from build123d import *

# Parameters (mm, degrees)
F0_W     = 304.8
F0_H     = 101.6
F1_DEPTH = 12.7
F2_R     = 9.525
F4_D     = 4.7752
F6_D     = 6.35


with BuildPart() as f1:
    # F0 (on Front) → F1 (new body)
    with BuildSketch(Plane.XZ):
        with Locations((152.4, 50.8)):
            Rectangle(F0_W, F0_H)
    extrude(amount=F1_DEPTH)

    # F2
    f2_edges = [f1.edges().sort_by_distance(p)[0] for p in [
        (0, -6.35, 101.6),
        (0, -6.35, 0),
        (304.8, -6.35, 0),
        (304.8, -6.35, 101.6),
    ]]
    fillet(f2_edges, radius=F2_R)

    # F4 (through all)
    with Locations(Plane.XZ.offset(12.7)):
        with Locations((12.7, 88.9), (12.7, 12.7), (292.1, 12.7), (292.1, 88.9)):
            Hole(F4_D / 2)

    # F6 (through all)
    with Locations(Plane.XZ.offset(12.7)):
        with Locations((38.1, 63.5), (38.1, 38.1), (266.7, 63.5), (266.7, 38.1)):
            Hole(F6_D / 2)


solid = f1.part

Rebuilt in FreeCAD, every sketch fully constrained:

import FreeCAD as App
import Part
import Sketcher

V = App.Vector
Q = App.Units.Quantity


def edges_at(feature, points):
    """Names of the edges that pass closest to the given points."""
    edges = feature.Shape.Edges
    near = lambda p: min(range(len(edges)), key=lambda i: edges[i].distToShape(Part.Vertex(*p))[0])
    return sorted({f"Edge{near(p) + 1}" for p in points})

doc = App.newDocument("Part")
body = doc.addObject("PartDesign::Body", "Body")

# Sketch on XZ plane
sketch1 = body.newObject("Sketcher::SketchObject", "Sketch")
sketch1.AttachmentSupport = (doc.getObject("XZ_Plane"), [""])
sketch1.MapMode = "FlatFace"
sketch1.addGeometry(Part.LineSegment(V(0, 101.6, 0), V(0, 0, 0)), False)
sketch1.addGeometry(Part.LineSegment(V(0, 0, 0), V(304.8, 0, 0)), False)
sketch1.addGeometry(Part.LineSegment(V(304.8, 0, 0), V(304.8, 101.6, 0)), False)
sketch1.addGeometry(Part.LineSegment(V(304.8, 101.6, 0), V(0, 101.6, 0)), False)
sketch1.addConstraint(Sketcher.Constraint("Coincident", 0, 2, 1, 1))
sketch1.addConstraint(Sketcher.Constraint("Coincident", 1, 2, 2, 1))
sketch1.addConstraint(Sketcher.Constraint("Coincident", 2, 2, 3, 1))
sketch1.addConstraint(Sketcher.Constraint("Coincident", 3, 2, 0, 1))
sketch1.addConstraint(Sketcher.Constraint("Vertical", 0))
sketch1.addConstraint(Sketcher.Constraint("Horizontal", 1))
sketch1.addConstraint(Sketcher.Constraint("Vertical", 2))
sketch1.addConstraint(Sketcher.Constraint("Horizontal", 3))
sketch1.addConstraint(Sketcher.Constraint("Coincident", 0, 2, -1, 1))
sketch1.addConstraint(Sketcher.Constraint("DistanceX", 1, 1, 1, 2, Q("12 in")))
sketch1.addConstraint(Sketcher.Constraint("DistanceY", 0, 2, 0, 1, Q("4 in")))
pad1 = body.newObject("PartDesign::Pad", "Pad")
pad1.Profile = sketch1
pad1.Length = Q("0.5 in")
doc.recompute()

fillet = body.newObject("PartDesign::Fillet", "Fillet")
fillet.Base = (pad1, edges_at(pad1, [
    (0, -6.35, 101.6),
    (0, -6.35, 0),
    (304.8, -6.35, 0),
    (304.8, -6.35, 101.6),
]))
fillet.Radius = Q("0.375 in")

# Sketch on XZ plane
sketch2 = body.newObject("Sketcher::SketchObject", "Sketch001")
sketch2.AttachmentSupport = (doc.getObject("XZ_Plane"), [""])
sketch2.MapMode = "FlatFace"
sketch2.AttachmentOffset = App.Placement(V(0, 0, 0.5 * 25.4), App.Rotation())
sketch2.addGeometry(Part.Circle(V(12.7, 88.9, 0), V(0, 0, 1), 2.3876), False)
sketch2.addGeometry(Part.Circle(V(12.7, 12.7, 0), V(0, 0, 1), 2.3876), False)
sketch2.addGeometry(Part.Circle(V(292.1, 12.7, 0), V(0, 0, 1), 2.3876), False)
sketch2.addGeometry(Part.Circle(V(292.1, 88.9, 0), V(0, 0, 1), 2.3876), False)
sketch2.addConstraint(Sketcher.Constraint("Equal", 0, 1))
sketch2.addConstraint(Sketcher.Constraint("Equal", 1, 2))
sketch2.addConstraint(Sketcher.Constraint("Equal", 2, 3))
sketch2.addConstraint(Sketcher.Constraint("Horizontal", 1, 3, 2, 3))
sketch2.addConstraint(Sketcher.Constraint("Horizontal", 0, 3, 3, 3))
sketch2.addConstraint(Sketcher.Constraint("Vertical", 0, 3, 1, 3))
sketch2.addConstraint(Sketcher.Constraint("Vertical", 2, 3, 3, 3))
sketch2.addConstraint(Sketcher.Constraint("Diameter", 0, Q("0.188 in")))
sketch2.addConstraint(Sketcher.Constraint("DistanceY", 1, 3, 0, 3, Q("3 in")))
sketch2.addConstraint(Sketcher.Constraint("DistanceX", 1, 3, 2, 3, Q("11 in")))
sketch2.addConstraint(Sketcher.Constraint("DistanceX", -1, 1, 0, 3, Q("0.5 in")))
sketch2.addConstraint(Sketcher.Constraint("DistanceY", -1, 1, 0, 3, Q("3.5 in")))
doc.recompute()
hole = body.newObject("PartDesign::Hole", "Hole")
hole.Profile = sketch2
hole.ThreadType = "None"
hole.Diameter = Q("0.188 in")
hole.DepthType = "ThroughAll"

# Sketch on XZ plane
sketch3 = body.newObject("Sketcher::SketchObject", "Sketch002")
sketch3.AttachmentSupport = (doc.getObject("XZ_Plane"), [""])
sketch3.MapMode = "FlatFace"
sketch3.AttachmentOffset = App.Placement(V(0, 0, 0.5 * 25.4), App.Rotation())
sketch3.addGeometry(Part.Circle(V(38.1, 63.5, 0), V(0, 0, 1), 3.175), False)
sketch3.addGeometry(Part.Circle(V(38.1, 38.1, 0), V(0, 0, 1), 3.175), False)
sketch3.addGeometry(Part.Circle(V(266.7, 63.5, 0), V(0, 0, 1), 3.175), False)
sketch3.addGeometry(Part.Circle(V(266.7, 38.1, 0), V(0, 0, 1), 3.175), False)
sketch3.addConstraint(Sketcher.Constraint("Equal", 0, 1))
sketch3.addConstraint(Sketcher.Constraint("Equal", 1, 2))
sketch3.addConstraint(Sketcher.Constraint("Equal", 2, 3))
sketch3.addConstraint(Sketcher.Constraint("Horizontal", 0, 3, 2, 3))
sketch3.addConstraint(Sketcher.Constraint("Horizontal", 1, 3, 3, 3))
sketch3.addConstraint(Sketcher.Constraint("Vertical", 0, 3, 1, 3))
sketch3.addConstraint(Sketcher.Constraint("Vertical", 2, 3, 3, 3))
sketch3.addConstraint(Sketcher.Constraint("Diameter", 0, Q("0.25 in")))
sketch3.addConstraint(Sketcher.Constraint("DistanceY", 1, 3, 0, 3, Q("1 in")))
sketch3.addConstraint(Sketcher.Constraint("DistanceX", 0, 3, 2, 3, Q("9 in")))
sketch3.addConstraint(Sketcher.Constraint("DistanceX", -1, 1, 0, 3, Q("1.5 in")))
sketch3.addConstraint(Sketcher.Constraint("DistanceY", -1, 1, 0, 3, Q("2.5 in")))
doc.recompute()
hole2 = body.newObject("PartDesign::Hole", "Hole001")
hole2.Profile = sketch3
hole2.ThreadType = "None"
hole2.Diameter = Q("0.25 in")
hole2.DepthType = "ThroughAll"

doc.recompute()
